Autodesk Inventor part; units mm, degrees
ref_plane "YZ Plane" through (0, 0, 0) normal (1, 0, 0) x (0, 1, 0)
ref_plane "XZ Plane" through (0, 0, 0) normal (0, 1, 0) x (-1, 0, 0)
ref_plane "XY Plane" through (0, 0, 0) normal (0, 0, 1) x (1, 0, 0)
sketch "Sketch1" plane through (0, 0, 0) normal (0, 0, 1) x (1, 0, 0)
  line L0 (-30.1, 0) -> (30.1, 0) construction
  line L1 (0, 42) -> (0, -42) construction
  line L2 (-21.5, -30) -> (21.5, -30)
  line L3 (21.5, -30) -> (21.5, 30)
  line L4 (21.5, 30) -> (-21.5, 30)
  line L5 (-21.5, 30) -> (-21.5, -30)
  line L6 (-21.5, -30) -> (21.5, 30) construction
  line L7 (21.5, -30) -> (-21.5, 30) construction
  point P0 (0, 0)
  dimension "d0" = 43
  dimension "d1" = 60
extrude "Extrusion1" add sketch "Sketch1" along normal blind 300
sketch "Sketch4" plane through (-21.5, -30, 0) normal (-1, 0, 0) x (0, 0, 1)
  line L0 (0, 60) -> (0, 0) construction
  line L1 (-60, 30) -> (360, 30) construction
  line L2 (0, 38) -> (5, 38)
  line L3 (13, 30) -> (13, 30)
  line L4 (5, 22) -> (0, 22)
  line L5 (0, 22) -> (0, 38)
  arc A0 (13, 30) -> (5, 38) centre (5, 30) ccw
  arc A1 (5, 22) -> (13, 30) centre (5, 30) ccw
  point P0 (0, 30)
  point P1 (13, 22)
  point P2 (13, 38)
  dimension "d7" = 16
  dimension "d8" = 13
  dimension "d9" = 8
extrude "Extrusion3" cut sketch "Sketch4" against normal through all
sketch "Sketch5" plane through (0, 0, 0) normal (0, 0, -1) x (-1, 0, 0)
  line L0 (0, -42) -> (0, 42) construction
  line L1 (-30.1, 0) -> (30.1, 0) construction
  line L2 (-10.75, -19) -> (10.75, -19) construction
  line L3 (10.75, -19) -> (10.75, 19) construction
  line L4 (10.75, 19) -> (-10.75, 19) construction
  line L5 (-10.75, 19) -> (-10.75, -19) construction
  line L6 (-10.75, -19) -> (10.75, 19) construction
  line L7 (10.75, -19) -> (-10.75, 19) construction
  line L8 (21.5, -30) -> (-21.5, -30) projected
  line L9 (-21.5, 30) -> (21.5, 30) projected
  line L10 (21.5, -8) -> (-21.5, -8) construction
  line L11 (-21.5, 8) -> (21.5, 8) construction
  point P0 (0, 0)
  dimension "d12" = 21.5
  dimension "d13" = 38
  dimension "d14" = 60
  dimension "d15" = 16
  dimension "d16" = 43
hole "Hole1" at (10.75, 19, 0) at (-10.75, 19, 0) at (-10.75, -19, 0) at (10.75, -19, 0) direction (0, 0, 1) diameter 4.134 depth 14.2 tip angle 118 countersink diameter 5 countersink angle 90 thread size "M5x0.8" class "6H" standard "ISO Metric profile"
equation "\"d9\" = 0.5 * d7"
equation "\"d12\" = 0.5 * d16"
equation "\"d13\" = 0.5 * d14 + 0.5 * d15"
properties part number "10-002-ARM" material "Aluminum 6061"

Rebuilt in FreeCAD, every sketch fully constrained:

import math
import FreeCAD as App
import Part
import Sketcher
from FreeCAD import Vector
Q = App.Units.Quantity

doc = App.newDocument("Part")
body = doc.addObject("PartDesign::Body", "Body")

sketch1 = body.newObject("Sketcher::SketchObject", "Sketch")
sketch1.AttachmentSupport = (doc.getObject("XY_Plane"), [""])
sketch1.MapMode = "FlatFace"
sketch1.addGeometry(Part.LineSegment(Vector(-22, 30, 0), Vector(-22, -30, 0)), False)
sketch1.addGeometry(Part.LineSegment(Vector(-22, -30, 0), Vector(22, -30, 0)), False)
sketch1.addGeometry(Part.LineSegment(Vector(22, -30, 0), Vector(22, 30, 0)), False)
sketch1.addGeometry(Part.LineSegment(Vector(22, 30, 0), Vector(-22, 30, 0)), False)
sketch1.addConstraint(Sketcher.Constraint("Coincident", 0, 2, 1, 1))
sketch1.addConstraint(Sketcher.Constraint("Coincident", 1, 2, 2, 1))
sketch1.addConstraint(Sketcher.Constraint("Coincident", 2, 2, 3, 1))
sketch1.addConstraint(Sketcher.Constraint("Coincident", 3, 2, 0, 1))
sketch1.addConstraint(Sketcher.Constraint("Vertical", 0))
sketch1.addConstraint(Sketcher.Constraint("Horizontal", 1))
sketch1.addConstraint(Sketcher.Constraint("Vertical", 2))
sketch1.addConstraint(Sketcher.Constraint("Horizontal", 3))
sketch1.addConstraint(Sketcher.Constraint("Symmetric", 0, 2, 2, 2, -1, 1))
sketch1.addConstraint(Sketcher.Constraint("DistanceX", 1, 1, 1, 2, Q("43 mm")))
sketch1.addConstraint(Sketcher.Constraint("DistanceY", 0, 2, 0, 1, Q("60 mm")))
pad1 = body.newObject("PartDesign::Pad", "Pad")
pad1.Profile = sketch1
pad1.Length = 300

sketch2 = body.newObject("Sketcher::SketchObject", "Sketch001")
sketch2.AttachmentSupport = (doc.getObject("YZ_Plane"), [""])
sketch2.MapMode = "FlatFace"
sketch2.AttachmentOffset = App.Placement(Vector(0, 0, -21.5), App.Rotation())
sketch2.addGeometry(Part.LineSegment(Vector(8, 5, 0), Vector(8, 0, 0)), False)
sketch2.addGeometry(Part.LineSegment(Vector(8, 0, 0), Vector(-8, 0, 0)), False)
sketch2.addGeometry(Part.LineSegment(Vector(-8, 0, 0), Vector(-8, 5, 0)), False)
sketch2.addGeometry(Part.ArcOfCircle(Part.Circle(Vector(0, 5, 0), Vector(0, 0, 1), 8), math.radians(0), math.radians(180)), False)
sketch2.addConstraint(Sketcher.Constraint("Coincident", 0, 2, 1, 1))
sketch2.addConstraint(Sketcher.Constraint("Coincident", 1, 2, 2, 1))
sketch2.addConstraint(Sketcher.Constraint("Tangent", 2, 2, 3, 2))
sketch2.addConstraint(Sketcher.Constraint("Tangent", 3, 1, 0, 1))
sketch2.addConstraint(Sketcher.Constraint("Vertical", 0))
sketch2.addConstraint(Sketcher.Constraint("Horizontal", 1))
sketch2.addConstraint(Sketcher.Constraint("Vertical", 2))
sketch2.addConstraint(Sketcher.Constraint("Symmetric", 0, 2, 1, 2, -1, 1))
sketch2.addConstraint(Sketcher.Constraint("Radius", 3, Q("8 mm")))
sketch2.addConstraint(Sketcher.Constraint("DistanceY", 0, 2, 0, 1, Q("5 mm")))
pocket1 = body.newObject("PartDesign::Pocket", "Pocket")
pocket1.Profile = sketch2
pocket1.Type = "ThroughAll"
pocket1.Reversed = True

sketch3 = body.newObject("Sketcher::SketchObject", "Sketch002")
sketch3.AttachmentSupport = (doc.getObject("XY_Plane"), [""])
sketch3.MapMode = "FlatFace"
sketch3.addGeometry(Part.Circle(Vector(10.8, 19, 0), Vector(0, 0, 1), 2.1), False)
sketch3.addGeometry(Part.Circle(Vector(-10.8, 19, 0), Vector(0, 0, 1), 2.1), False)
sketch3.addGeometry(Part.Circle(Vector(-10.8, -19, 0), Vector(0, 0, 1), 2.1), False)
sketch3.addGeometry(Part.Circle(Vector(10.8, -19, 0), Vector(0, 0, 1), 2.1), False)
sketch3.addConstraint(Sketcher.Constraint("Equal", 0, 1))
sketch3.addConstraint(Sketcher.Constraint("Equal", 1, 2))
sketch3.addConstraint(Sketcher.Constraint("Equal", 2, 3))
sketch3.addConstraint(Sketcher.Constraint("Symmetric", 0, 3, 2, 3, -1, 1))
sketch3.addConstraint(Sketcher.Constraint("Symmetric", 1, 3, 3, 3, -1, 1))
sketch3.addConstraint(Sketcher.Constraint("Symmetric", 0, 3, 1, 3, -2))
sketch3.addConstraint(Sketcher.Constraint("Diameter", 0, Q("4.134 mm")))
sketch3.addConstraint(Sketcher.Constraint("DistanceY", -1, 1, 0, 3, Q("19 mm")))
sketch3.addConstraint(Sketcher.Constraint("DistanceX", 1, 3, 0, 3, Q("21.5 mm")))
doc.recompute()
hole = body.newObject("PartDesign::Hole", "Hole")
hole.Profile = sketch3
hole.ThreadType = "None"
hole.Diameter = 4.134
hole.DepthType = "Dimension"
hole.Depth = 14.2
hole.DrillPoint = "Angled"
hole.DrillPointAngle = 118
hole.HoleCutType = "Countersink"
hole.HoleCutDiameter = 5
hole.HoleCutCountersinkAngle = 90
hole.Reversed = True

doc.recompute()
